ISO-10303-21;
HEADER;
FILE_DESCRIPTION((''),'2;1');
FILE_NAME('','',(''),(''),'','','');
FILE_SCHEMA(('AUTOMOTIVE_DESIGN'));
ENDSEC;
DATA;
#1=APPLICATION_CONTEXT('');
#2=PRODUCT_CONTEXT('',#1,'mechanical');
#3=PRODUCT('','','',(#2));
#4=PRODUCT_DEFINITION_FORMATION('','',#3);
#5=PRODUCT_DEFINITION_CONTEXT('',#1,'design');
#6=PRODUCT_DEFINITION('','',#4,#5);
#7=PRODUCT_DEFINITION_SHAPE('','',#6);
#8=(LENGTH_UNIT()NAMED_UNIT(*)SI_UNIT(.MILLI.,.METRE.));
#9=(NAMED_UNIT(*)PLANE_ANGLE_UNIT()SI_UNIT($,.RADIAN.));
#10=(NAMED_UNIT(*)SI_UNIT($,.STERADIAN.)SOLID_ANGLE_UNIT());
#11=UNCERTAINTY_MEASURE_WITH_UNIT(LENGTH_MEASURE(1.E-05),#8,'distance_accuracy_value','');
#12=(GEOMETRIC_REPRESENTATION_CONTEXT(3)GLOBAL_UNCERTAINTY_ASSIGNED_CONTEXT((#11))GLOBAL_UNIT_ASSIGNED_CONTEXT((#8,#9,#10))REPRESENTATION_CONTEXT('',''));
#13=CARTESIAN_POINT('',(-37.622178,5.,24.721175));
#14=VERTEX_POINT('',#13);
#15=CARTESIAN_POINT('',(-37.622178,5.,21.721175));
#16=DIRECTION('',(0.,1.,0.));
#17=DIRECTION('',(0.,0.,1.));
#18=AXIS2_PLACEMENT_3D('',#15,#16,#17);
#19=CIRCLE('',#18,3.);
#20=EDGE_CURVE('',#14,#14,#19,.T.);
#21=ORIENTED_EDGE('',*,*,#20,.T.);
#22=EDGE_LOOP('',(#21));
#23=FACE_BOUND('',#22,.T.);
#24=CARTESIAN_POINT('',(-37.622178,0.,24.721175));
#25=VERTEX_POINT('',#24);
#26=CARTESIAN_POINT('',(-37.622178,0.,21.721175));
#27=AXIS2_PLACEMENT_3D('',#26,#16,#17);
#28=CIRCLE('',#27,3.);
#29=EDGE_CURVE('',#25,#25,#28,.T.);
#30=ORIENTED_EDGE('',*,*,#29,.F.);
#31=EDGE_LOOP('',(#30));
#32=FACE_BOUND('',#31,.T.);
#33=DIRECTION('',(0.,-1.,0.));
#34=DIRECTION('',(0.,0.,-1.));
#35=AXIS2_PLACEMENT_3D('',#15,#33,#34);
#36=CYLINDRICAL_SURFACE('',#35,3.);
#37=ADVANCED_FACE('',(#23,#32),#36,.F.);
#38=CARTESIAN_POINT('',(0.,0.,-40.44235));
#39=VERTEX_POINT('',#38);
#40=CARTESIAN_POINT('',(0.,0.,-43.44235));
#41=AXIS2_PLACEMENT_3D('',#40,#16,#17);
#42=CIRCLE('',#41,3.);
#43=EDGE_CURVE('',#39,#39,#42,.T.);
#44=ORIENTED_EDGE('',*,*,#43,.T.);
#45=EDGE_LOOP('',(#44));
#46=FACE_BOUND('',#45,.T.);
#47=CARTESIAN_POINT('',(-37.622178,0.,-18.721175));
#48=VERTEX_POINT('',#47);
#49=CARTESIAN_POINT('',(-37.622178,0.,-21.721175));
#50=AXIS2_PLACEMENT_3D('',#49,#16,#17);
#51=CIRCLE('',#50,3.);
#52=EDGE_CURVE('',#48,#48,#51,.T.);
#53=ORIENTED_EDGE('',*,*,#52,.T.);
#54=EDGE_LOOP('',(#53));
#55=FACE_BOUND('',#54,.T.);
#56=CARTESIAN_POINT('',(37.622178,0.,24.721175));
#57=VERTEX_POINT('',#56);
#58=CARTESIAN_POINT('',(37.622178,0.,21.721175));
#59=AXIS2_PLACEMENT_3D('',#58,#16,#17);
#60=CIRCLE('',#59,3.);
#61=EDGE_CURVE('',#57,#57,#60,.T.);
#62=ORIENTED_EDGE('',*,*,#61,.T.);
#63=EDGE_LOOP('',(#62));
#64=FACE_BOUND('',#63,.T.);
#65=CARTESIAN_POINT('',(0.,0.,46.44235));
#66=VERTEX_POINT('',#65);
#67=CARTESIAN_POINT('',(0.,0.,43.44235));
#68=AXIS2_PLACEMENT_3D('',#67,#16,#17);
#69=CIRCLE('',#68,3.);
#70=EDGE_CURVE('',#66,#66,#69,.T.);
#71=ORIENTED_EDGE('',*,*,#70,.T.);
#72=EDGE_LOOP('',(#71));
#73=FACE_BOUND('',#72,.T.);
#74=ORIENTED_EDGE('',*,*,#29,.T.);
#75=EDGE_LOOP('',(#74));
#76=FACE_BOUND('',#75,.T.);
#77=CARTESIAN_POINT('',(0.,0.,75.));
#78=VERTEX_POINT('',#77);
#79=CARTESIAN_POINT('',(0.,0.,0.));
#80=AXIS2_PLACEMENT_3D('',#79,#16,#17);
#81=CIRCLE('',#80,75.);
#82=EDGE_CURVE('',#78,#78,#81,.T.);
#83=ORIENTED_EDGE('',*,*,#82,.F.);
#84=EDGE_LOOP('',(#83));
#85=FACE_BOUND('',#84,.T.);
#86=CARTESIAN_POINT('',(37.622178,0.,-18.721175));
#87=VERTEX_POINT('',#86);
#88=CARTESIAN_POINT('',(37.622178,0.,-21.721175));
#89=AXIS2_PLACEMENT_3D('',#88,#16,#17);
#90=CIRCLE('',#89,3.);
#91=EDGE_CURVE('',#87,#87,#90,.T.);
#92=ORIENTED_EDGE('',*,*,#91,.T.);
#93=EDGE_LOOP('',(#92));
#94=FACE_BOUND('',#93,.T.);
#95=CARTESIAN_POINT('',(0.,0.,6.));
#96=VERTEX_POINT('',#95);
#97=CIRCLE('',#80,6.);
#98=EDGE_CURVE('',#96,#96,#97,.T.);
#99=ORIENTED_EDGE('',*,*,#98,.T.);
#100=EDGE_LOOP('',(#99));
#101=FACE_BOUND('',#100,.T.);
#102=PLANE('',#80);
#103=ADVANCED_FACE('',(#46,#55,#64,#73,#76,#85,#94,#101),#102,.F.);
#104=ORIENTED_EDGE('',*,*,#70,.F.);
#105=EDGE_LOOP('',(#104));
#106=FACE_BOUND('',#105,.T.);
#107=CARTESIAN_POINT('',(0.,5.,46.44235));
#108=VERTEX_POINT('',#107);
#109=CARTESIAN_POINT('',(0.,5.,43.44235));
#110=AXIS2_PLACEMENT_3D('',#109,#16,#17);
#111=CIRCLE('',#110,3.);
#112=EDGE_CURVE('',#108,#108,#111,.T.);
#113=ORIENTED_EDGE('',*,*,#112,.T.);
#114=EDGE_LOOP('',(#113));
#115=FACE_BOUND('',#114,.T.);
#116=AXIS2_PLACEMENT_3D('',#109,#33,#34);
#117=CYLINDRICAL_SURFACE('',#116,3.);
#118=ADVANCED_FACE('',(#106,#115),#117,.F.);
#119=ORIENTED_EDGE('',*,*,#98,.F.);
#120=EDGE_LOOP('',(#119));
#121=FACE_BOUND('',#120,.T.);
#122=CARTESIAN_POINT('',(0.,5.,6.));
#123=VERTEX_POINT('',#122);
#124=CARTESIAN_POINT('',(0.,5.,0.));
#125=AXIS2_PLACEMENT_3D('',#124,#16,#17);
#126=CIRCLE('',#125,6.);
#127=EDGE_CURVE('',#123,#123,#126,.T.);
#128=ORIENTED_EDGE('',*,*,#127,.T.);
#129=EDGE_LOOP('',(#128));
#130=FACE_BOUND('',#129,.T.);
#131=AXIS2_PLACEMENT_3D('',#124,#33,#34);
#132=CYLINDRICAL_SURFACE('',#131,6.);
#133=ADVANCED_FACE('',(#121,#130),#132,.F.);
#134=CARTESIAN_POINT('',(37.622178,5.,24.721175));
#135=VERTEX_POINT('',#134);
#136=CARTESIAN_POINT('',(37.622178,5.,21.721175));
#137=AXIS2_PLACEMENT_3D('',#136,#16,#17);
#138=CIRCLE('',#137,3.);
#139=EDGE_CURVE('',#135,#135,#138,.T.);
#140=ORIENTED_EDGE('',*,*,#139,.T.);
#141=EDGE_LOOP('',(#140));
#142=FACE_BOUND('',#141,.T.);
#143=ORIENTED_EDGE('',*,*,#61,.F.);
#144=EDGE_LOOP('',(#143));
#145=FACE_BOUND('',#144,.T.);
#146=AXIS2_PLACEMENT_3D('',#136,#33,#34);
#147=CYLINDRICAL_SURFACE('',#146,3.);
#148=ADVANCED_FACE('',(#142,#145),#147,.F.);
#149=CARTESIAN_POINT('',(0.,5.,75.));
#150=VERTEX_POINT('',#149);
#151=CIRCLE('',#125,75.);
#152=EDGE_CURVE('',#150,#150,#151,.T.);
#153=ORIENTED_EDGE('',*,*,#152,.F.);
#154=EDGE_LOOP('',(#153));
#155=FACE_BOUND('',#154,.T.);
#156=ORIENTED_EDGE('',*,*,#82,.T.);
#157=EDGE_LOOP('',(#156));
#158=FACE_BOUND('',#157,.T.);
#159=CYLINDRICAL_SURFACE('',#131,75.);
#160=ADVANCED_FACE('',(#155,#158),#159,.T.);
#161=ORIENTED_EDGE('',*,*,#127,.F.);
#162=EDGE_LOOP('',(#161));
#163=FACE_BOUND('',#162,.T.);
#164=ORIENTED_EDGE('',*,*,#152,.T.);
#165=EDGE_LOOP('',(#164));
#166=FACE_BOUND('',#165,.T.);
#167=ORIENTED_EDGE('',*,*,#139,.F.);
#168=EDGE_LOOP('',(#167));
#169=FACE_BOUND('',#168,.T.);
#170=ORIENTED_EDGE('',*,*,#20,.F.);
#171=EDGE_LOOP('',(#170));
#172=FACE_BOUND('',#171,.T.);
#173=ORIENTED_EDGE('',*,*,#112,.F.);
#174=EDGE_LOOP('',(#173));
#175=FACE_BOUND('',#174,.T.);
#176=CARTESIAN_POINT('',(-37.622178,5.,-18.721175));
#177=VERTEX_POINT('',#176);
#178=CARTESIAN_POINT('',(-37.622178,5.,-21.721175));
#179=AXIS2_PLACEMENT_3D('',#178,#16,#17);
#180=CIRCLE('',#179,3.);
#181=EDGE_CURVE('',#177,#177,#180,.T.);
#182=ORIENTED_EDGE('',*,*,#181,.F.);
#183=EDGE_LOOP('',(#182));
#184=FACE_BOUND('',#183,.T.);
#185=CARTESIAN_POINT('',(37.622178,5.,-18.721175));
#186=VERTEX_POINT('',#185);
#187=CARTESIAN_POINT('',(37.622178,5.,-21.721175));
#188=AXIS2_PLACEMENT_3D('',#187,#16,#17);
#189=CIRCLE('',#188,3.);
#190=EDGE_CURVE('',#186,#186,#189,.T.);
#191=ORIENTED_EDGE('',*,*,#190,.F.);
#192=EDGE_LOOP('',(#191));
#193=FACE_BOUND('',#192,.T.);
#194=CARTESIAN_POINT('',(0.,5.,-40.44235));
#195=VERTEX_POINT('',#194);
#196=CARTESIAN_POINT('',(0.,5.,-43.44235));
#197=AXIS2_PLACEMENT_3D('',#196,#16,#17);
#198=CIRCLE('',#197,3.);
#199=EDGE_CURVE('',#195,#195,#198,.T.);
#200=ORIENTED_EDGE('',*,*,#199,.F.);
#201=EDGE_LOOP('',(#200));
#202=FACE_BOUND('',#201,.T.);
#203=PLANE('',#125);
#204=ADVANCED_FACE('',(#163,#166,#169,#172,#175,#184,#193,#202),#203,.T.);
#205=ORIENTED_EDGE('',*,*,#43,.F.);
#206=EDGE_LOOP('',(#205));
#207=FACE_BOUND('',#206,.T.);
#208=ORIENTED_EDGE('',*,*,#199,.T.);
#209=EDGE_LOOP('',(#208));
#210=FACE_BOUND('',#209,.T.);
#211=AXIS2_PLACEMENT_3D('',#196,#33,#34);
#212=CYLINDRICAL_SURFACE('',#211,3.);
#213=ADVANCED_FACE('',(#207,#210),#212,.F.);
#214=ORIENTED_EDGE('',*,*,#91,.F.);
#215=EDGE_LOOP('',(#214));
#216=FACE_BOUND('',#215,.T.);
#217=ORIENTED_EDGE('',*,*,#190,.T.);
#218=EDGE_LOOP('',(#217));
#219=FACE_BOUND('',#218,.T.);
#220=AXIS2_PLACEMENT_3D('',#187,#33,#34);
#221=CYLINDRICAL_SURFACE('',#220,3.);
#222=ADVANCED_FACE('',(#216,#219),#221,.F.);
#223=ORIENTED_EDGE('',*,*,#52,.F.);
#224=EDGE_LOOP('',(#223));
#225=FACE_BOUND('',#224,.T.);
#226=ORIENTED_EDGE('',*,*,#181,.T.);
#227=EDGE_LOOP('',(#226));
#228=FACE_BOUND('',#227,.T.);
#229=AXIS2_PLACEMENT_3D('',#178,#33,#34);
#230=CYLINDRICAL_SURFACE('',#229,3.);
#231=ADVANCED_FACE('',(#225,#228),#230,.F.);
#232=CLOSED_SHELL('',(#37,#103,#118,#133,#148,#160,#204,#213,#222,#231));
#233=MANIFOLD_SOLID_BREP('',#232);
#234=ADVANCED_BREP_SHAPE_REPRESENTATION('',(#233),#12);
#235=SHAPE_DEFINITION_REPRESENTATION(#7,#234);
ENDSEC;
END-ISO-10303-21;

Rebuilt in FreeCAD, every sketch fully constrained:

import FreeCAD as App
import Part
import Sketcher
from FreeCAD import Vector
Q = App.Units.Quantity

doc = App.newDocument("Part")
body = doc.addObject("PartDesign::Body", "Body")

sketch1 = doc.addObject("Sketcher::SketchObject", "Sketch")
body.addObject(sketch1)
sketch1.AttachmentSupport = (doc.XZ_Plane, [""])
sketch1.MapMode = "FlatFace"
sketch1.addGeometry(Part.Circle(Vector(0, 0, 0), Vector(0, 0, 1), 75), False)
sketch1.addGeometry(Part.Circle(Vector(-37.6, -21.7, 0), Vector(0, 0, 1), 3), False)
sketch1.addGeometry(Part.Circle(Vector(0, -43.4, 0), Vector(0, 0, 1), 3), False)
sketch1.addGeometry(Part.Circle(Vector(-37.6, 21.7, 0), Vector(0, 0, 1), 3), False)
sketch1.addGeometry(Part.Circle(Vector(37.6, -21.7, 0), Vector(0, 0, 1), 3), False)
sketch1.addGeometry(Part.Circle(Vector(0, 0, 0), Vector(0, 0, 1), 6), False)
sketch1.addGeometry(Part.Circle(Vector(0, 43.4, 0), Vector(0, 0, 1), 3), False)
sketch1.addGeometry(Part.Circle(Vector(37.6, 21.7, 0), Vector(0, 0, 1), 3), False)
sketch1.addConstraint(Sketcher.Constraint("Coincident", 0, 3, -1, 1))
sketch1.addConstraint(Sketcher.Constraint("Coincident", 5, 3, -1, 1))
sketch1.addConstraint(Sketcher.Constraint("Equal", 1, 2))
sketch1.addConstraint(Sketcher.Constraint("Equal", 2, 3))
sketch1.addConstraint(Sketcher.Constraint("Equal", 3, 4))
sketch1.addConstraint(Sketcher.Constraint("Equal", 4, 6))
sketch1.addConstraint(Sketcher.Constraint("Equal", 6, 7))
sketch1.addConstraint(Sketcher.Constraint("Symmetric", 3, 3, 4, 3, -1, 1))
sketch1.addConstraint(Sketcher.Constraint("Symmetric", 2, 3, 6, 3, -1, 1))
sketch1.addConstraint(Sketcher.Constraint("Symmetric", 1, 3, 7, 3, -1, 1))
sketch1.addConstraint(Sketcher.Constraint("Symmetric", 1, 3, 4, 3, -2))
sketch1.addConstraint(Sketcher.Constraint("PointOnObject", 2, 3, -2))
sketch1.addConstraint(Sketcher.Constraint("Diameter", 0, Q("150 mm")))
sketch1.addConstraint(Sketcher.Constraint("Diameter", 1, Q("6 mm")))
sketch1.addConstraint(Sketcher.Constraint("Diameter", 5, Q("12 mm")))
sketch1.addConstraint(Sketcher.Constraint("DistanceX", 1, 3, -1, 1, Q("37.622178 mm")))
sketch1.addConstraint(Sketcher.Constraint("DistanceY", 2, 3, -1, 1, Q("43.44235 mm")))
sketch1.addConstraint(Sketcher.Constraint("DistanceY", 1, 3, 3, 3, Q("43.44235 mm")))
pad1 = doc.addObject("PartDesign::Pad", "Pad")
body.addObject(pad1)
pad1.Profile = sketch1
pad1.Length = 5
pad1.Reversed = True

doc.recompute()
